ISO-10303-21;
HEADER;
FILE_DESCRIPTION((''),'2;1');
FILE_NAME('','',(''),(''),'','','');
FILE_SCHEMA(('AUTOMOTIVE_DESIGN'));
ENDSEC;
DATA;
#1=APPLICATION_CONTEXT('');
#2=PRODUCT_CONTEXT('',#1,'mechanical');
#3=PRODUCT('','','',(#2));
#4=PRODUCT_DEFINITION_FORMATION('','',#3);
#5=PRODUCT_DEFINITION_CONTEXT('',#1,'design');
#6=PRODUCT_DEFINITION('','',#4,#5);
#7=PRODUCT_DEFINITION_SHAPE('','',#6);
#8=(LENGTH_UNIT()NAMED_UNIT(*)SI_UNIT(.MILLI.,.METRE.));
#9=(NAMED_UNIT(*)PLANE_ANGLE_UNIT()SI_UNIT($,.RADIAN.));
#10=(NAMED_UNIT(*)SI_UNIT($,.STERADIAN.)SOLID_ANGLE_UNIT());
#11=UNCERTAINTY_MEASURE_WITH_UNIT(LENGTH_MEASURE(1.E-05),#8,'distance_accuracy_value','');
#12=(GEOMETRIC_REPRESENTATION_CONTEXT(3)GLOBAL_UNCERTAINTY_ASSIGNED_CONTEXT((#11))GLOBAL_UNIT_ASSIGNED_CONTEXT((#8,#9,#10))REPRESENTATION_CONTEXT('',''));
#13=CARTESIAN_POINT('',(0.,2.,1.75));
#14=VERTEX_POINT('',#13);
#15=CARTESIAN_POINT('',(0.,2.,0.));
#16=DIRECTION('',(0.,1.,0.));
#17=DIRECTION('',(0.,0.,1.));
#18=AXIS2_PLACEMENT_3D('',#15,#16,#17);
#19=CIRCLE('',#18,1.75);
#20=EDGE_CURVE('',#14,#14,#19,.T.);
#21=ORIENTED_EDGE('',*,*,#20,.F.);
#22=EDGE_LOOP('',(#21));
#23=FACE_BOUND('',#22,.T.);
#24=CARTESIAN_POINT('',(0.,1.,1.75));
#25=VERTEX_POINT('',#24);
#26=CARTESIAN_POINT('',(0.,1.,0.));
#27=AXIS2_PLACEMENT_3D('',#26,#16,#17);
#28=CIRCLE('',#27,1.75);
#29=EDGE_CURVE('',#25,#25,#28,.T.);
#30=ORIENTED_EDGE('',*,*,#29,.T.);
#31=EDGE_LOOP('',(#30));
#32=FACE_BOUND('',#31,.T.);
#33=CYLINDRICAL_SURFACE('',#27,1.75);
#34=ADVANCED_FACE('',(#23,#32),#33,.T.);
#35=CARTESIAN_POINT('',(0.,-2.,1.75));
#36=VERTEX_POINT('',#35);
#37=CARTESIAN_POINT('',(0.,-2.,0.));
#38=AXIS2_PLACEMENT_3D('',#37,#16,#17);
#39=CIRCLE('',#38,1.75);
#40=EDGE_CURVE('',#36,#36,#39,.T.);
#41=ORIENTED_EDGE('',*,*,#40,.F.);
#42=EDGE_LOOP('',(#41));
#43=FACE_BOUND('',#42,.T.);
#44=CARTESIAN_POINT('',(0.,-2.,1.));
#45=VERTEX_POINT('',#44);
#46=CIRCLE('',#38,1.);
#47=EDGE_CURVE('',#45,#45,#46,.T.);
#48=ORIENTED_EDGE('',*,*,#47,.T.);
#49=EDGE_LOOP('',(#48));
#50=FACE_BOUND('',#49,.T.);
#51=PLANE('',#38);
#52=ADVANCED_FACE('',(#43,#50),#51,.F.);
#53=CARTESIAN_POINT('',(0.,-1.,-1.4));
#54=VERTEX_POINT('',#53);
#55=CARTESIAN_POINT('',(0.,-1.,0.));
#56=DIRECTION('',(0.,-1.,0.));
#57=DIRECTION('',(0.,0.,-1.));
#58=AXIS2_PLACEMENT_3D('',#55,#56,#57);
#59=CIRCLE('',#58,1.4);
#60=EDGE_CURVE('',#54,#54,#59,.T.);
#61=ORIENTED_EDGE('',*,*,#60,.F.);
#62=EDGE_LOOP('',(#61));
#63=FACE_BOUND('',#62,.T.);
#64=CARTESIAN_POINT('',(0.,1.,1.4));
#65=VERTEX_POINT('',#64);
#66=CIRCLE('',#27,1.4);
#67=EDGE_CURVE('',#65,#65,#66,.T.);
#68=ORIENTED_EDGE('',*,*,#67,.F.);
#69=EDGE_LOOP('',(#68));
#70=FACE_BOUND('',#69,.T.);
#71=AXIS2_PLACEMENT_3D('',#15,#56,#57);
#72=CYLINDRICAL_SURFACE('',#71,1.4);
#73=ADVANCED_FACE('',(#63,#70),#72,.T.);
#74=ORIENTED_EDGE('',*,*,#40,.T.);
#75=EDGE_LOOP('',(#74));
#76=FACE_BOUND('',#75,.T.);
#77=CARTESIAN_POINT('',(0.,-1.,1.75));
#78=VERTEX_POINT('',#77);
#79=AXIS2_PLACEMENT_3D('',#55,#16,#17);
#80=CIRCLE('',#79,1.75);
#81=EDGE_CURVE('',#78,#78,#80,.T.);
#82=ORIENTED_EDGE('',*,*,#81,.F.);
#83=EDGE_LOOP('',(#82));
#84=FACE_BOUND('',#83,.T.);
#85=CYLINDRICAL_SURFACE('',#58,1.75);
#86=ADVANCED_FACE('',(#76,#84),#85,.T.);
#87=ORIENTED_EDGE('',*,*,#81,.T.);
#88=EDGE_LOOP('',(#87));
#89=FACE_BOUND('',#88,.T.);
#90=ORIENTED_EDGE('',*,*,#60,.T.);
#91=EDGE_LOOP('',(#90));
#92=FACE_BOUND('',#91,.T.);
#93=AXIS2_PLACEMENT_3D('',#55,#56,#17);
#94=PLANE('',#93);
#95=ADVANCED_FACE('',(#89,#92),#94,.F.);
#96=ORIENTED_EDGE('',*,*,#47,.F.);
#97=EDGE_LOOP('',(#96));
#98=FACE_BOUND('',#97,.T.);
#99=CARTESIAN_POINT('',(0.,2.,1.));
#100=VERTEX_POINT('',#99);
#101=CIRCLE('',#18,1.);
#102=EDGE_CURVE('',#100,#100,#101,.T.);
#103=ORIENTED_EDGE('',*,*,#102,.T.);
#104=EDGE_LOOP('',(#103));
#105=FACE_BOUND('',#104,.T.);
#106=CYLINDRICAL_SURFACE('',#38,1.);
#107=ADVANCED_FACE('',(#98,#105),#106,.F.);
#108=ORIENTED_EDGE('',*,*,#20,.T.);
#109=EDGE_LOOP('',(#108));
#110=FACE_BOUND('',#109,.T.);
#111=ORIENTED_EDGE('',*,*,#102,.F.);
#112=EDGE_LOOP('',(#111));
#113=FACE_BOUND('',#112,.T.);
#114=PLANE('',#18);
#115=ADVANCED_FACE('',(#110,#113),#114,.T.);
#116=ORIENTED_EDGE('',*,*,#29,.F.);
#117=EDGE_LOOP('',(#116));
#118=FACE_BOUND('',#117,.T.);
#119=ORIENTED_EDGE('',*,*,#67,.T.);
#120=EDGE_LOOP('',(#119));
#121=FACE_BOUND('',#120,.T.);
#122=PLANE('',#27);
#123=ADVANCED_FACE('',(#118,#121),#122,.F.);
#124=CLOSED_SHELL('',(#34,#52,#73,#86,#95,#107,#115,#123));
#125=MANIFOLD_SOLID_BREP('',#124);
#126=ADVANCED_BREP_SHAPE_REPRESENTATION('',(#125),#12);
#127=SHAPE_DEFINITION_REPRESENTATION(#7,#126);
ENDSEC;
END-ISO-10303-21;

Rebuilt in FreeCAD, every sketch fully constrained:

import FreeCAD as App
import Part
import Sketcher

V = App.Vector
Q = App.Units.Quantity

doc = App.newDocument("Part")
params = doc.addObject("Spreadsheet::Sheet", "Params")
for row, (alias, value) in enumerate([
    ("sketch1_diameter", "2.8 mm"),
    ("pad1_length", "4 mm"),
    ("sketch2_diameter", "3.5 mm"),
    ("pad2_length", "1 mm"),
    ("sketch3_diameter", "2 mm"),
], start=1):
    params.set(f"A{row}", alias)
    params.set(f"B{row}", "=" + value)
    params.setAlias(f"B{row}", alias)

body = doc.addObject("PartDesign::Body", "Body")

# Sketch on XZ plane
sketch1 = doc.addObject("Sketcher::SketchObject", "Sketch")
body.addObject(sketch1)
sketch1.AttachmentSupport = (doc.XZ_Plane, [""])
sketch1.MapMode = "FlatFace"
sketch1.addGeometry(Part.Circle(V(0, 0, 0), V(0, 0, 1), 1.4), False)
sketch1.addConstraint([
    Sketcher.Constraint("Coincident", 0, 3, -1, 1),
    Sketcher.Constraint("Diameter", 0, Q("2.8 mm")),
])
sketch1.setExpression("Constraints[1]", "Params.sketch1_diameter")
pad1 = doc.addObject("PartDesign::Pad", "Pad")
body.addObject(pad1)
pad1.Profile = sketch1
pad1.setExpression("Length", "Params.pad1_length")
pad1.Midplane = True

# Sketch on XZ plane
sketch2 = doc.addObject("Sketcher::SketchObject", "Sketch001")
body.addObject(sketch2)
sketch2.AttachmentSupport = (doc.XZ_Plane, [""])
sketch2.MapMode = "FlatFace"
sketch2.AttachmentOffset = App.Placement(V(0, 0, -2), App.Rotation())
sketch2.addGeometry(Part.Circle(V(0, 0, 0), V(0, 0, 1), 1.75), False)
sketch2.addConstraint([
    Sketcher.Constraint("Coincident", 0, 3, -1, 1),
    Sketcher.Constraint("Diameter", 0, Q("3.5 mm")),
])
sketch2.setExpression("Constraints[1]", "Params.sketch2_diameter")
pad2 = doc.addObject("PartDesign::Pad", "Pad001")
body.addObject(pad2)
pad2.Profile = sketch2
pad2.setExpression("Length", "Params.pad2_length")
doc.recompute()

mirrored = doc.addObject("PartDesign::Mirrored", "Mirrored")
body.addObject(mirrored)
mirrored.Originals = [pad2]
mirrored.MirrorPlane = (doc.XZ_Plane, [""])
body.Tip = mirrored

# Sketch on XZ plane
sketch3 = doc.addObject("Sketcher::SketchObject", "Sketch002")
body.addObject(sketch3)
sketch3.AttachmentSupport = (doc.XZ_Plane, [""])
sketch3.MapMode = "FlatFace"
sketch3.addGeometry(Part.Circle(V(0, 0, 0), V(0, 0, 1), 1), False)
sketch3.addConstraint([
    Sketcher.Constraint("Coincident", 0, 3, -1, 1),
    Sketcher.Constraint("Diameter", 0, Q("2 mm")),
])
sketch3.setExpression("Constraints[1]", "Params.sketch3_diameter")
pocket1 = doc.addObject("PartDesign::Pocket", "Pocket")
body.addObject(pocket1)
pocket1.Profile = sketch3
pocket1.Type = "ThroughAll"
pocket1.Midplane = True

doc.recompute()
